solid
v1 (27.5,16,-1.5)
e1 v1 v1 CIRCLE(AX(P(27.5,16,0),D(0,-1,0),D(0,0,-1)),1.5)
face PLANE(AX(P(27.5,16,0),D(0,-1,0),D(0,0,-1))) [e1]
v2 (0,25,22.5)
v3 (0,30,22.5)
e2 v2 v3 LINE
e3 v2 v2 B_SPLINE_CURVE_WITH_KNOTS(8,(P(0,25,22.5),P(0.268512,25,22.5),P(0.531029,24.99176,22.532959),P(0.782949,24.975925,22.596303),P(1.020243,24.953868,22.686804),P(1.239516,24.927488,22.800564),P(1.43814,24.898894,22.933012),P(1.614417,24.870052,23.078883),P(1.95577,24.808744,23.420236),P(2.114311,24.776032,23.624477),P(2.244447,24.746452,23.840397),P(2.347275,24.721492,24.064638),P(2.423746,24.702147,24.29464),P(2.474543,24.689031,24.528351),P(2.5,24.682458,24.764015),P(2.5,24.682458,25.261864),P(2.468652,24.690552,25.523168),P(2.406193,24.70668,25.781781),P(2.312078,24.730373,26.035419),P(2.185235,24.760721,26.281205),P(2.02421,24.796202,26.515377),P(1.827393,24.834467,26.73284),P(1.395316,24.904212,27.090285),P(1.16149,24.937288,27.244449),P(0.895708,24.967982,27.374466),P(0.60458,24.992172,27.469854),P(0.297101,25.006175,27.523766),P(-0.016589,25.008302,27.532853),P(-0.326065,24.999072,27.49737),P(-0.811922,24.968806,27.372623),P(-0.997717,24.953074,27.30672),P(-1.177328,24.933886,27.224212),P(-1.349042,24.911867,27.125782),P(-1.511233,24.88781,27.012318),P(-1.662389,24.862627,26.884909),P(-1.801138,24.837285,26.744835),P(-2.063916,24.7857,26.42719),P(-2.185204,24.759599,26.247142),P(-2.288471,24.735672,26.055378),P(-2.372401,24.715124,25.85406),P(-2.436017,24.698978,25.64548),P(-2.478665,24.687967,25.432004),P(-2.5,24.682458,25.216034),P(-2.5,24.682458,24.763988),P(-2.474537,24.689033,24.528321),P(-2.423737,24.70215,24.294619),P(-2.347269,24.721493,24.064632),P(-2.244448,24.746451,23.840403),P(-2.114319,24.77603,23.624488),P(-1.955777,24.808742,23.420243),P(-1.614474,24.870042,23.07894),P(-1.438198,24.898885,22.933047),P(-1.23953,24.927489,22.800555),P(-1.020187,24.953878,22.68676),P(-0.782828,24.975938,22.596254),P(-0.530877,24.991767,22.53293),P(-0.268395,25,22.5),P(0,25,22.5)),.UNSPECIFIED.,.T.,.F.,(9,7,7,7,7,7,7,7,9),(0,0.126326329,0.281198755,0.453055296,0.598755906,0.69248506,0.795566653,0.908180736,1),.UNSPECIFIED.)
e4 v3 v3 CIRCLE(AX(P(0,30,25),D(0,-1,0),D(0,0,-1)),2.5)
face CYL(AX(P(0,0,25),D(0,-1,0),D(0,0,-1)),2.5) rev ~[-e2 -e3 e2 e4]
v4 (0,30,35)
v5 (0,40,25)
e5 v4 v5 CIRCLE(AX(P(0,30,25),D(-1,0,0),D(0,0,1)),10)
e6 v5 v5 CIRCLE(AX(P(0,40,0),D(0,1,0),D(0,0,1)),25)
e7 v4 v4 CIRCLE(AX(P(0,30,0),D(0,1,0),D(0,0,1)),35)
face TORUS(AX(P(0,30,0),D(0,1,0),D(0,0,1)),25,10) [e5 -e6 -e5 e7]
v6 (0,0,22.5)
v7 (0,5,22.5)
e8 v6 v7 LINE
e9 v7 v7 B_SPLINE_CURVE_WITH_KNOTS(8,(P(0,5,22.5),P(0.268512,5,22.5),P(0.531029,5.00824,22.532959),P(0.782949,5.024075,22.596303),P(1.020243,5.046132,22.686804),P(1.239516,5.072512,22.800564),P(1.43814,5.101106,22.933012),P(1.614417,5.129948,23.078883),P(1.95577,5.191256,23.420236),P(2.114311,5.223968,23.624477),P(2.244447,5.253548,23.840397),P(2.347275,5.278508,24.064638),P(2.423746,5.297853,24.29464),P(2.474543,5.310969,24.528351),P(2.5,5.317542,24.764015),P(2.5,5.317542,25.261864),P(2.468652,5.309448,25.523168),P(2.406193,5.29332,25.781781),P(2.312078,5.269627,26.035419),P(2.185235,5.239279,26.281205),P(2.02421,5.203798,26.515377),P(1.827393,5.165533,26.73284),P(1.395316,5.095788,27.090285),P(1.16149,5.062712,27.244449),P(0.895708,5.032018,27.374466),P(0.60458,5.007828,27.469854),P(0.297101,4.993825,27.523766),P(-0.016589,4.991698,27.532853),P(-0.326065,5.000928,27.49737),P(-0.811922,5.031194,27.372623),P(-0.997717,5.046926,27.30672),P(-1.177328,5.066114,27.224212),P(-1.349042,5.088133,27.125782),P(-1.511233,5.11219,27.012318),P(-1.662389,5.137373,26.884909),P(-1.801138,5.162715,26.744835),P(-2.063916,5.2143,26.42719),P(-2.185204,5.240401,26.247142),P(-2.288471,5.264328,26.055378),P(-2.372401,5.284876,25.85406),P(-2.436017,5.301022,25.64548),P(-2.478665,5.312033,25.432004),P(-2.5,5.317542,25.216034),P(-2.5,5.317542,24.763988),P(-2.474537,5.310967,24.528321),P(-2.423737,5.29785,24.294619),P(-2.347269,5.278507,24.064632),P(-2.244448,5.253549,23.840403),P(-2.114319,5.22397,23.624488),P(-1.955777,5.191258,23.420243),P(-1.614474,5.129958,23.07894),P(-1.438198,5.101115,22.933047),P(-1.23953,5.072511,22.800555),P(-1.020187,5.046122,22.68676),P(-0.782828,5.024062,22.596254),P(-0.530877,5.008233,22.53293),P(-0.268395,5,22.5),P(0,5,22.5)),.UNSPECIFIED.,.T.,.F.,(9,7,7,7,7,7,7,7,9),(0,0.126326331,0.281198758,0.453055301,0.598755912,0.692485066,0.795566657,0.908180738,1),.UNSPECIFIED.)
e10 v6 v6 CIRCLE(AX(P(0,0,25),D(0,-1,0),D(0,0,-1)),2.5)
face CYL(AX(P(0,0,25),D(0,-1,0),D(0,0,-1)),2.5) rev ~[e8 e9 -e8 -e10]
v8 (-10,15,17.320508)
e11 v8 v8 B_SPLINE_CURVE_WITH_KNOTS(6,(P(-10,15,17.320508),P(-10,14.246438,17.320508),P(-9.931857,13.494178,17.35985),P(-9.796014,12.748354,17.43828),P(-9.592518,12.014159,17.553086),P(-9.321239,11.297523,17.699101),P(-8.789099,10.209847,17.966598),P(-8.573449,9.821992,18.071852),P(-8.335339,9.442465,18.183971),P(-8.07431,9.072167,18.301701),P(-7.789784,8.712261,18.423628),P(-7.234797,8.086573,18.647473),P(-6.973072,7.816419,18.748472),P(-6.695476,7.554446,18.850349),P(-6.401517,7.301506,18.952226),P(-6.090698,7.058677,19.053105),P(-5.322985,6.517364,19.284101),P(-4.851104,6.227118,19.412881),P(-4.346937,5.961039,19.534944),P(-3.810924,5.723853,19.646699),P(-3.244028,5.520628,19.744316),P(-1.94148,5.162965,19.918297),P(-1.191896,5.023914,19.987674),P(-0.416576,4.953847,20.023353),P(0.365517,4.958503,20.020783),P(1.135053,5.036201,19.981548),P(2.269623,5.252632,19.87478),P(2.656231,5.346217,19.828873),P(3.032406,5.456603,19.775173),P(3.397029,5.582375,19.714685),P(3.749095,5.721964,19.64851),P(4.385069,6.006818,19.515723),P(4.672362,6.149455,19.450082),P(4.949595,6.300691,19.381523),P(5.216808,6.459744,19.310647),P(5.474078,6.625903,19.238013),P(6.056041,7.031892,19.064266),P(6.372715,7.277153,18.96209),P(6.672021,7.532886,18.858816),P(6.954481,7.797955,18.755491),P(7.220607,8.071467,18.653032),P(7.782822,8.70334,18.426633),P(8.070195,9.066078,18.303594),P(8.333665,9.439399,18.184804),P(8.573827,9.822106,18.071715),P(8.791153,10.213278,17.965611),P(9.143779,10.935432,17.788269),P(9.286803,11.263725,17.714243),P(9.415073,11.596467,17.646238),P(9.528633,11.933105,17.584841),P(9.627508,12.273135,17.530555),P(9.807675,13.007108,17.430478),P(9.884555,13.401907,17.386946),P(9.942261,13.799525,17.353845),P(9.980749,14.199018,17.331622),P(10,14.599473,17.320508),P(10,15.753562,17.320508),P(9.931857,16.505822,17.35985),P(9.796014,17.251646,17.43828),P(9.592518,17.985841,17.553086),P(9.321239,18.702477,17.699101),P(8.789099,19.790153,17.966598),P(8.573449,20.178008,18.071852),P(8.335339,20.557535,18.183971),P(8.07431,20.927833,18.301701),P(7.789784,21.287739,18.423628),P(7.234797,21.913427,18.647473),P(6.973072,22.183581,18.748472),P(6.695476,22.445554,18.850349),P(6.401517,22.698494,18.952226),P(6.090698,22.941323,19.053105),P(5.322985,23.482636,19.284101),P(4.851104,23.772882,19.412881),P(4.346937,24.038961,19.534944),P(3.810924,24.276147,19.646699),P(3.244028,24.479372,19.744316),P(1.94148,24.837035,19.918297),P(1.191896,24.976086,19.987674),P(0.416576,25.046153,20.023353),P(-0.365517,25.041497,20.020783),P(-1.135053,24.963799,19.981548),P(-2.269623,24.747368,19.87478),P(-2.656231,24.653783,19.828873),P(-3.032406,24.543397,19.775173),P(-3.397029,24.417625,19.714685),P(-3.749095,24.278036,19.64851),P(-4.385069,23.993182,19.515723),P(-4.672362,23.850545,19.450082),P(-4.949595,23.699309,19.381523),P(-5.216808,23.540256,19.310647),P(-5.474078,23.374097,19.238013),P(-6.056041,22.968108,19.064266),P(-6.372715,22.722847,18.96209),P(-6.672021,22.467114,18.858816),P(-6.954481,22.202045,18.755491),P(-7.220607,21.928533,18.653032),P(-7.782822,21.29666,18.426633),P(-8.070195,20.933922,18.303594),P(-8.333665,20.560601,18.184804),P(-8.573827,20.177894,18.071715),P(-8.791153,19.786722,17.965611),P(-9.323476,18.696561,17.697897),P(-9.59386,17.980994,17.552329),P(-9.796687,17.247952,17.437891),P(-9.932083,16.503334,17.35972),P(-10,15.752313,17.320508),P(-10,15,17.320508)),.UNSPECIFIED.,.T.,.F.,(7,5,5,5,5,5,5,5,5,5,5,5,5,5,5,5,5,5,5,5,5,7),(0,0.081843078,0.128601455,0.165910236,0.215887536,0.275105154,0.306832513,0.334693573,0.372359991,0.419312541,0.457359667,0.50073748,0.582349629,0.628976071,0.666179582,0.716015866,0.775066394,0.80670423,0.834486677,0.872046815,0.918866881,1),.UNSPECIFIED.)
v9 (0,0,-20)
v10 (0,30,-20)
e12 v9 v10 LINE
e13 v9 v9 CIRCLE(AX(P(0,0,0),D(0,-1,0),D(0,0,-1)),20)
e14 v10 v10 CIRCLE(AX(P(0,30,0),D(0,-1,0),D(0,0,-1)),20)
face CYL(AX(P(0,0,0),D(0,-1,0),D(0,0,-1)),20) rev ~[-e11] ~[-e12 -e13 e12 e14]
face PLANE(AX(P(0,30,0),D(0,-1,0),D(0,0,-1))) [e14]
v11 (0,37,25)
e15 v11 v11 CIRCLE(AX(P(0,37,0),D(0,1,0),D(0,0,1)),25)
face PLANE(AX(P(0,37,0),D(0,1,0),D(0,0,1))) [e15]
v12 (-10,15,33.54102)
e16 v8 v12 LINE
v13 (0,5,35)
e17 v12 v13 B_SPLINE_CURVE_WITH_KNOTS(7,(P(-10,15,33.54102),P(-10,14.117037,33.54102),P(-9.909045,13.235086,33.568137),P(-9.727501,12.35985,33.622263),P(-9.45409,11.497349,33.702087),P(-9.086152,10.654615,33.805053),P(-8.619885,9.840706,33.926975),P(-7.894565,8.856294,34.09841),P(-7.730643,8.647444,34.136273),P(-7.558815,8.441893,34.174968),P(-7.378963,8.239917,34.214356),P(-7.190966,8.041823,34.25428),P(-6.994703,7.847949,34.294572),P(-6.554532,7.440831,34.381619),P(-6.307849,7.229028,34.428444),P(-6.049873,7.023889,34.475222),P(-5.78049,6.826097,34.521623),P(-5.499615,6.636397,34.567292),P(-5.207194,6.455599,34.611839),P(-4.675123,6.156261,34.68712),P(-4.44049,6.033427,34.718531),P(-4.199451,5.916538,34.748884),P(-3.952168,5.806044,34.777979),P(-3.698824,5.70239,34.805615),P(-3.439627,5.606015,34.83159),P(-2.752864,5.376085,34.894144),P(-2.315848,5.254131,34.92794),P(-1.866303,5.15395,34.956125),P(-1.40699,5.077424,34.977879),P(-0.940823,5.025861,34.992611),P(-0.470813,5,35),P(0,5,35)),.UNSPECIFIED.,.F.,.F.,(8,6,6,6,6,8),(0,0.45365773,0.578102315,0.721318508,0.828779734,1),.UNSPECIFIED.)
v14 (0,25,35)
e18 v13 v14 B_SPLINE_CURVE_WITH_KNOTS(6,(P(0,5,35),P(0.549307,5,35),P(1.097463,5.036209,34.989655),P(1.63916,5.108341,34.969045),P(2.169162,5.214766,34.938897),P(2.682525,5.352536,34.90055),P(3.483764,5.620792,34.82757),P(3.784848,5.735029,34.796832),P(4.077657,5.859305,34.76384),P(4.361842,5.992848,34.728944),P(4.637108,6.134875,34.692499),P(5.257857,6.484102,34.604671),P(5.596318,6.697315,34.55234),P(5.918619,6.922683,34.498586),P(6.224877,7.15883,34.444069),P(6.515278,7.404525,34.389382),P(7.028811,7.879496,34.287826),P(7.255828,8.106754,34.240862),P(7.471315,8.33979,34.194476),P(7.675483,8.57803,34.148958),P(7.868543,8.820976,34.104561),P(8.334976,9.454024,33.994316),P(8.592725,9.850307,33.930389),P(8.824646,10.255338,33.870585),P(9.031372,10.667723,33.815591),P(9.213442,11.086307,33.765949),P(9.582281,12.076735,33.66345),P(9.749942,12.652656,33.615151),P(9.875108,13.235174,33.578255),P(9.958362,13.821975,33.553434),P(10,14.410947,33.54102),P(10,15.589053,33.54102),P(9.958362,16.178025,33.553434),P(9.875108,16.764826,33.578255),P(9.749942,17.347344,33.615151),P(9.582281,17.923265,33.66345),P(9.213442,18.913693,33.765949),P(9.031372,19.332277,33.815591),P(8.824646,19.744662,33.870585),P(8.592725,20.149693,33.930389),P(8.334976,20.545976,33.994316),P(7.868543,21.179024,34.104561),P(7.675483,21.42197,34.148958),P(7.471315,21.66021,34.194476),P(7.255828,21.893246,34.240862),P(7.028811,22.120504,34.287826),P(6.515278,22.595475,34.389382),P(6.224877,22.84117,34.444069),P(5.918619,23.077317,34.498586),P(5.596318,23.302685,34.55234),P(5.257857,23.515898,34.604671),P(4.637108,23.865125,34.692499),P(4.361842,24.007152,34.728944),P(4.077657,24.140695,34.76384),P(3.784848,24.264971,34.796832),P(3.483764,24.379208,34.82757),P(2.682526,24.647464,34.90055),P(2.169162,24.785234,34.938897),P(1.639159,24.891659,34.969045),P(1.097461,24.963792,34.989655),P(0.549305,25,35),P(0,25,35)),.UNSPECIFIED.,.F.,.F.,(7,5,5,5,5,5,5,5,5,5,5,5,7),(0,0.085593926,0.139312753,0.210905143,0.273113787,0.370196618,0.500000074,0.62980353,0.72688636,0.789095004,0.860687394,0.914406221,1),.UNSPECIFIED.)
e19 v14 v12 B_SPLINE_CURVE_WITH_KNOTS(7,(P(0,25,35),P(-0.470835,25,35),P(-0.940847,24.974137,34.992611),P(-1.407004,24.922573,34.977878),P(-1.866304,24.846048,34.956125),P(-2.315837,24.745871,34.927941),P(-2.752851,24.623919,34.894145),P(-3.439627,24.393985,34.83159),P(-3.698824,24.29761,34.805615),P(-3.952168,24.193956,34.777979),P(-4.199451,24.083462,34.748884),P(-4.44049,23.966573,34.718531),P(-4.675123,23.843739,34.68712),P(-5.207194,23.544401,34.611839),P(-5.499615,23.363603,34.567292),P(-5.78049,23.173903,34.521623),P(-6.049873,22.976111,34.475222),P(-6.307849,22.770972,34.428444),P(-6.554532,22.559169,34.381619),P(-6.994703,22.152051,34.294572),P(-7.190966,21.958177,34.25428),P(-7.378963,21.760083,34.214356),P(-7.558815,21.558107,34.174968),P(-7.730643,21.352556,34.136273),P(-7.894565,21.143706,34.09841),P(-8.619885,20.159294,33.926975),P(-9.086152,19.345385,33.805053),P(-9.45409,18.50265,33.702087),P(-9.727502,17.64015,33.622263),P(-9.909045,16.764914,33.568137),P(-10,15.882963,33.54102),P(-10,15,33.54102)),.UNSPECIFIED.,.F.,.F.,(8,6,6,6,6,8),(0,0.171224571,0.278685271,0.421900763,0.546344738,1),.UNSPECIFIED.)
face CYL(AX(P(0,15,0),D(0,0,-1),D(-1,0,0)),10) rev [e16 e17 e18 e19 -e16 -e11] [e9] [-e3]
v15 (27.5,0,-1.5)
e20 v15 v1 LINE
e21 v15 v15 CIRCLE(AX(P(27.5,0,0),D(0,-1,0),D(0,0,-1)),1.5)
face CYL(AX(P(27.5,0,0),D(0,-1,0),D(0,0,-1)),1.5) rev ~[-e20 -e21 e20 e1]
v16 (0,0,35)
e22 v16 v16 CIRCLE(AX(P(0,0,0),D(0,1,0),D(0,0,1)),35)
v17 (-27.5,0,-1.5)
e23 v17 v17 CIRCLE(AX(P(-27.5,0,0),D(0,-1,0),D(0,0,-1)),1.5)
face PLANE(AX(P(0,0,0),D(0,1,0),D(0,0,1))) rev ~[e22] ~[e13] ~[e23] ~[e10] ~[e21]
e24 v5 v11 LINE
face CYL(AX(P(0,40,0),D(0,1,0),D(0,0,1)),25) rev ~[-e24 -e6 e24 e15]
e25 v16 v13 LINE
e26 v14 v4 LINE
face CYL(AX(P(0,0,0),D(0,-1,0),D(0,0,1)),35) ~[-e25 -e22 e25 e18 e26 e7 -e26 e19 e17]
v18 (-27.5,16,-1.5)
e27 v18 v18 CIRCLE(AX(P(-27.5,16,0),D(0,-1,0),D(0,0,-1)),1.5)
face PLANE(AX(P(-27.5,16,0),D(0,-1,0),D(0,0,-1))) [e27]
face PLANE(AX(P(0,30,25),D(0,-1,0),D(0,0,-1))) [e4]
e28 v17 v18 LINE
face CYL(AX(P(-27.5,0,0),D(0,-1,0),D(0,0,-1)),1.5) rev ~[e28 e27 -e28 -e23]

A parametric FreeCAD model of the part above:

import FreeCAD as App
import Part
import Sketcher
from FreeCAD import Vector


def edges_at(feature, points):
    """Names of the edges that pass closest to the given points."""
    edges = feature.Shape.Edges
    near = lambda p: min(range(len(edges)), key=lambda i: edges[i].distToShape(Part.Vertex(*p))[0])
    return sorted({f"Edge{near(p) + 1}" for p in points})

doc = App.newDocument("Part")
params = doc.addObject("Spreadsheet::Sheet", "Params")
for row, (alias, value) in enumerate([
    ("sketch1_diameter", "70 mm"),
    ("pad1_length", "40 mm"),
    ("fillet_radius", "10 mm"),
    ("sketch2_diameter", "40 mm"),
    ("pocket1_length", "30 mm"),
    ("sketch3_diameter", "50 mm"),
    ("pocket2_length", "3 mm"),
    ("sketch4_diameter", "20 mm"),
    ("pocket3_length", "45 mm"),
    ("sketch5_diameter", "5 mm"),
    ("pocket4_length", "30 mm"),
    ("sketch6_diameter", "3 mm"),
    ("pocket5_length", "16 mm"),
], start=1):
    params.set(f"A{row}", alias)
    params.set(f"B{row}", "=" + value)
    params.setAlias(f"B{row}", alias)

body = doc.addObject("PartDesign::Body", "Body")

sketch1 = body.newObject("Sketcher::SketchObject", "Sketch")
sketch1.AttachmentSupport = (doc.getObject("XZ_Plane"), [""])
sketch1.MapMode = "FlatFace"
sketch1.addGeometry(Part.Circle(Vector(0, 0, 0), Vector(0, 0, 1), 35), False)
sketch1.addConstraint(Sketcher.Constraint("Coincident", 0, 3, -1, 1))
sketch1.addConstraint(Sketcher.Constraint("Diameter", 0, 70.0))
sketch1.setExpression("Constraints[1]", "Params.sketch1_diameter")
pad1 = body.newObject("PartDesign::Pad", "Pad")
pad1.Profile = sketch1
pad1.setExpression("Length", "Params.pad1_length")
pad1.Reversed = True
doc.recompute()

fillet = body.newObject("PartDesign::Fillet", "Fillet")
fillet.Base = (pad1, edges_at(pad1, [(0, 40, -35)]))
fillet.setExpression("Radius", "Params.fillet_radius")

sketch2 = body.newObject("Sketcher::SketchObject", "Sketch001")
sketch2.AttachmentSupport = (doc.getObject("XZ_Plane"), [""])
sketch2.MapMode = "FlatFace"
sketch2.addGeometry(Part.Circle(Vector(0, 0, 0), Vector(0, 0, 1), 20), False)
sketch2.addConstraint(Sketcher.Constraint("Coincident", 0, 3, -1, 1))
sketch2.addConstraint(Sketcher.Constraint("Diameter", 0, 40.0))
sketch2.setExpression("Constraints[1]", "Params.sketch2_diameter")
pocket1 = body.newObject("PartDesign::Pocket", "Pocket")
pocket1.Profile = sketch2
pocket1.setExpression("Length", "Params.pocket1_length")

sketch3 = body.newObject("Sketcher::SketchObject", "Sketch002")
sketch3.AttachmentSupport = (doc.getObject("XZ_Plane"), [""])
sketch3.MapMode = "FlatFace"
sketch3.AttachmentOffset = App.Placement(Vector(0, 0, -40), App.Rotation())
sketch3.addGeometry(Part.Circle(Vector(0, 0, 0), Vector(0, 0, 1), 25), False)
sketch3.addConstraint(Sketcher.Constraint("Coincident", 0, 3, -1, 1))
sketch3.addConstraint(Sketcher.Constraint("Diameter", 0, 50.0))
sketch3.setExpression("Constraints[1]", "Params.sketch3_diameter")
pocket2 = body.newObject("PartDesign::Pocket", "Pocket001")
pocket2.Profile = sketch3
pocket2.setExpression("Length", "Params.pocket2_length")
pocket2.Reversed = True

sketch4 = body.newObject("Sketcher::SketchObject", "Sketch003")
sketch4.AttachmentSupport = (doc.getObject("XY_Plane"), [""])
sketch4.MapMode = "FlatFace"
sketch4.addGeometry(Part.Circle(Vector(0, 15, 0), Vector(0, 0, 1), 10), False)
sketch4.addConstraint(Sketcher.Constraint("PointOnObject", 0, 3, -2))
sketch4.addConstraint(Sketcher.Constraint("Diameter", 0, 20.0))
sketch4.addConstraint(Sketcher.Constraint("DistanceY", -1, 1, 0, 3, 15.0))
sketch4.setExpression("Constraints[1]", "Params.sketch4_diameter")
pocket3 = body.newObject("PartDesign::Pocket", "Pocket002")
pocket3.Profile = sketch4
pocket3.setExpression("Length", "Params.pocket3_length")
pocket3.Reversed = True

sketch5 = body.newObject("Sketcher::SketchObject", "Sketch004")
sketch5.AttachmentSupport = (doc.getObject("XZ_Plane"), [""])
sketch5.MapMode = "FlatFace"
sketch5.addGeometry(Part.Circle(Vector(0, 25, 0), Vector(0, 0, 1), 2.5), False)
sketch5.addConstraint(Sketcher.Constraint("PointOnObject", 0, 3, -2))
sketch5.addConstraint(Sketcher.Constraint("Diameter", 0, 5.0))
sketch5.addConstraint(Sketcher.Constraint("DistanceY", -1, 1, 0, 3, 25.0))
sketch5.setExpression("Constraints[1]", "Params.sketch5_diameter")
pocket4 = body.newObject("PartDesign::Pocket", "Pocket003")
pocket4.Profile = sketch5
pocket4.setExpression("Length", "Params.pocket4_length")

sketch6 = body.newObject("Sketcher::SketchObject", "Sketch005")
sketch6.AttachmentSupport = (doc.getObject("XZ_Plane"), [""])
sketch6.MapMode = "FlatFace"
sketch6.addGeometry(Part.Circle(Vector(-27.5, 0, 0), Vector(0, 0, 1), 1.5), False)
sketch6.addGeometry(Part.Circle(Vector(27.5, 0, 0), Vector(0, 0, 1), 1.5), False)
sketch6.addConstraint(Sketcher.Constraint("Equal", 0, 1))
sketch6.addConstraint(Sketcher.Constraint("Symmetric", 0, 3, 1, 3, -1, 1))
sketch6.addConstraint(Sketcher.Constraint("PointOnObject", 0, 3, -1))
sketch6.addConstraint(Sketcher.Constraint("Diameter", 0, 3.0))
sketch6.addConstraint(Sketcher.Constraint("DistanceX", 0, 3, 1, 3, 55.0))
sketch6.setExpression("Constraints[3]", "Params.sketch6_diameter")
pocket5 = body.newObject("PartDesign::Pocket", "Pocket004")
pocket5.Profile = sketch6
pocket5.setExpression("Length", "Params.pocket5_length")

doc.recompute()
